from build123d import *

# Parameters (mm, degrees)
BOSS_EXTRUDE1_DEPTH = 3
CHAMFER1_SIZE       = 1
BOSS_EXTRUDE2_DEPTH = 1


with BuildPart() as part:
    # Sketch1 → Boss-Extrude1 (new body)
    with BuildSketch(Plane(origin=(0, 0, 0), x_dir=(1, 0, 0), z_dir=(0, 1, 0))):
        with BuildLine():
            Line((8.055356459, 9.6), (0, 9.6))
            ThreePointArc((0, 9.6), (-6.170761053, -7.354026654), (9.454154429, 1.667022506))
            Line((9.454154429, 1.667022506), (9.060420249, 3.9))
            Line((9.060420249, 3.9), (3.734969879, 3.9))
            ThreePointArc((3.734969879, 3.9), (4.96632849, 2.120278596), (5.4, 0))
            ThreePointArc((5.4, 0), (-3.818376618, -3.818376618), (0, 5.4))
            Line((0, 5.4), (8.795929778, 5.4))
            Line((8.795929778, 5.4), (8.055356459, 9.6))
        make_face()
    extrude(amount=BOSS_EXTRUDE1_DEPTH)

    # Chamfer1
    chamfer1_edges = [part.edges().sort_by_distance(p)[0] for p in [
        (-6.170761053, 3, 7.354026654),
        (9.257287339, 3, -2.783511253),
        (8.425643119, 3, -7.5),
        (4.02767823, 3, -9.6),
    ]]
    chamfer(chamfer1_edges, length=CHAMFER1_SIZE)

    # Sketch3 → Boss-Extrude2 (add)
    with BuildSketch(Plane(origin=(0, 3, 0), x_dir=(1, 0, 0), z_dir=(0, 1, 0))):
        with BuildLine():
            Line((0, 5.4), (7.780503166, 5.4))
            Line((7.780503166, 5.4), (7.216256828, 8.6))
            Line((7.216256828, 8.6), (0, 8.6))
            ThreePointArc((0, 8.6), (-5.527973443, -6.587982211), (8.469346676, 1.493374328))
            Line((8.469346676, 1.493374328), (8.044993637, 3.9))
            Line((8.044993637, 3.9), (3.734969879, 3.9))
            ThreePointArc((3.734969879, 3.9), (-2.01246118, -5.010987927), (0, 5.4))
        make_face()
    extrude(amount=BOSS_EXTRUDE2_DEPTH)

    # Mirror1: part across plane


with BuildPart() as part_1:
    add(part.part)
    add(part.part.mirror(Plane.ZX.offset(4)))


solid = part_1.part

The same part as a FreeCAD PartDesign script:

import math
import FreeCAD as App
import Part
import Sketcher
from FreeCAD import Vector
Q = App.Units.Quantity


def edges_at(feature, points):
    """Names of the edges that pass closest to the given points."""
    edges = feature.Shape.Edges
    near = lambda p: min(range(len(edges)), key=lambda i: edges[i].distToShape(Part.Vertex(*p))[0])
    return sorted({f"Edge{near(p) + 1}" for p in points})

doc = App.newDocument("Part")
body = doc.addObject("PartDesign::Body", "Body")

# Sketch on XZ plane
sketch1 = doc.addObject("Sketcher::SketchObject", "Sketch")
body.addObject(sketch1)
sketch1.AttachmentSupport = (doc.XZ_Plane, [""])
sketch1.MapMode = "FlatFace"
sketch1.addGeometry([
    Part.LineSegment(Vector(8.1, -9.6, 0), Vector(0, -9.6, 0)),  # 0
    Part.ArcOfCircle(Part.Circle(Vector(0, 0, 0), Vector(0, 0, 1), 9.6), math.radians(-10), math.radians(270)),  # 1
    Part.LineSegment(Vector(9.5, -1.7, 0), Vector(9.1, -3.9, 0)),  # 2
    Part.LineSegment(Vector(9.1, -3.9, 0), Vector(3.7, -3.9, 0)),  # 3
    Part.ArcOfCircle(Part.Circle(Vector(0, 0, 0), Vector(0, 0, 1), 5.4), math.radians(-46), math.radians(0)),  # 4
    Part.ArcOfCircle(Part.Circle(Vector(0, 0, 0), Vector(0, 0, 1), 5.4), math.radians(0), math.radians(270)),  # 5
    Part.LineSegment(Vector(0, -5.4, 0), Vector(8.8, -5.4, 0)),  # 6
    Part.LineSegment(Vector(8.8, -5.4, 0), Vector(8.1, -9.6, 0)),  # 7
], False)
sketch1.addConstraint([
    Sketcher.Constraint("Tangent", 0, 2, 1, 2),
    Sketcher.Constraint("Tangent", 1, 1, 2, 1),
    Sketcher.Constraint("Coincident", 2, 2, 3, 1),
    Sketcher.Constraint("Coincident", 3, 2, 4, 1),
    Sketcher.Constraint("Tangent", 4, 2, 5, 1),
    Sketcher.Constraint("Tangent", 5, 2, 6, 1),
    Sketcher.Constraint("Coincident", 6, 2, 7, 1),
    Sketcher.Constraint("Coincident", 7, 2, 0, 1),
    Sketcher.Constraint("Horizontal", 0),
    Sketcher.Constraint("Horizontal", 3),
    Sketcher.Constraint("Horizontal", 6),
    Sketcher.Constraint("Coincident", 1, 3, -1, 1),
    Sketcher.Constraint("Coincident", 4, 3, -1, 1),
    Sketcher.Constraint("Equal", 4, 5),
    Sketcher.Constraint("PointOnObject", 4, 2, -1),
    Sketcher.Constraint("Parallel", 2, 7),
    Sketcher.Constraint("Radius", 1, 9.6),
    Sketcher.Constraint("Radius", 4, 5.4),
    Sketcher.Constraint("Angle", 2, Q("-100 deg")),
    Sketcher.Constraint("DistanceY", 2, 2, -1, 1, 3.9),
    Sketcher.Constraint("DistanceX", 6, 1, 6, 2, 8.79593),
])
pad1 = doc.addObject("PartDesign::Pad", "Pad")
body.addObject(pad1)
pad1.Profile = sketch1
pad1.Length = 3
pad1.Reversed = True
doc.recompute()

chamfer = doc.addObject("PartDesign::Chamfer", "Chamfer")
body.addObject(chamfer)
chamfer.Base = (pad1, edges_at(pad1, [
    (-6.171, 3, 7.354),
    (9.257, 3, -2.784),
    (8.426, 3, -7.5),
    (4.028, 3, -9.6),
]))
chamfer.Size = 1

# Sketch on XZ plane
sketch2 = doc.addObject("Sketcher::SketchObject", "Sketch001")
body.addObject(sketch2)
sketch2.AttachmentSupport = (doc.XZ_Plane, [""])
sketch2.MapMode = "FlatFace"
sketch2.AttachmentOffset = App.Placement(Vector(0, 0, -3), App.Rotation())
sketch2.addGeometry([
    Part.LineSegment(Vector(0, -5.4, 0), Vector(7.8, -5.4, 0)),  # 0
    Part.LineSegment(Vector(7.8, -5.4, 0), Vector(7.2, -8.6, 0)),  # 1
    Part.LineSegment(Vector(7.2, -8.6, 0), Vector(0, -8.6, 0)),  # 2
    Part.ArcOfCircle(Part.Circle(Vector(0, 0, 0), Vector(0, 0, 1), 8.6), math.radians(-10), math.radians(270)),  # 3
    Part.LineSegment(Vector(8.5, -1.5, 0), Vector(8, -3.9, 0)),  # 4
    Part.LineSegment(Vector(8, -3.9, 0), Vector(3.7, -3.9, 0)),  # 5
    Part.ArcOfCircle(Part.Circle(Vector(0, 0, 0), Vector(0, 0, 1), 5.4), math.radians(-46), math.radians(270)),  # 6
], False)
sketch2.addConstraint([
    Sketcher.Constraint("Coincident", 0, 2, 1, 1),
    Sketcher.Constraint("Coincident", 1, 2, 2, 1),
    Sketcher.Constraint("Tangent", 2, 2, 3, 2),
    Sketcher.Constraint("Tangent", 3, 1, 4, 1),
    Sketcher.Constraint("Coincident", 4, 2, 5, 1),
    Sketcher.Constraint("Coincident", 5, 2, 6, 1),
    Sketcher.Constraint("Tangent", 6, 2, 0, 1),
    Sketcher.Constraint("Horizontal", 0),
    Sketcher.Constraint("Horizontal", 2),
    Sketcher.Constraint("Horizontal", 5),
    Sketcher.Constraint("Coincident", 3, 3, -1, 1),
    Sketcher.Constraint("Coincident", 6, 3, -1, 1),
    Sketcher.Constraint("Parallel", 1, 4),
    Sketcher.Constraint("Radius", 3, 8.6),
    Sketcher.Constraint("Radius", 6, 5.4),
    Sketcher.Constraint("Angle", 1, Q("-100 deg")),
    Sketcher.Constraint("DistanceY", 4, 2, -1, 1, 3.9),
    Sketcher.Constraint("DistanceX", 0, 1, 0, 2, 7.780503),
])
pad2 = doc.addObject("PartDesign::Pad", "Pad001")
body.addObject(pad2)
pad2.Profile = sketch2
pad2.Length = 1
pad2.Reversed = True
body2 = doc.addObject("PartDesign::Body", "Body001")
doc.recompute()

body2.BaseFeature = body
doc.recompute()

mirroring = doc.addObject("Part::Mirroring", "Mirroring")
mirroring.Source = body
mirroring.Base = Vector(0, 4, 0)
mirroring.Normal = Vector(0, 1, 0)
body3 = doc.addObject("PartDesign::Body", "Body002")
body3.BaseFeature = mirroring
boolean = doc.addObject("PartDesign::Boolean", "Boolean")
body2.addObject(boolean)
boolean.Type = "Fuse"
boolean.addObjects([body3])
doc.recompute()
mirroring.Visibility = False

doc.recompute()
